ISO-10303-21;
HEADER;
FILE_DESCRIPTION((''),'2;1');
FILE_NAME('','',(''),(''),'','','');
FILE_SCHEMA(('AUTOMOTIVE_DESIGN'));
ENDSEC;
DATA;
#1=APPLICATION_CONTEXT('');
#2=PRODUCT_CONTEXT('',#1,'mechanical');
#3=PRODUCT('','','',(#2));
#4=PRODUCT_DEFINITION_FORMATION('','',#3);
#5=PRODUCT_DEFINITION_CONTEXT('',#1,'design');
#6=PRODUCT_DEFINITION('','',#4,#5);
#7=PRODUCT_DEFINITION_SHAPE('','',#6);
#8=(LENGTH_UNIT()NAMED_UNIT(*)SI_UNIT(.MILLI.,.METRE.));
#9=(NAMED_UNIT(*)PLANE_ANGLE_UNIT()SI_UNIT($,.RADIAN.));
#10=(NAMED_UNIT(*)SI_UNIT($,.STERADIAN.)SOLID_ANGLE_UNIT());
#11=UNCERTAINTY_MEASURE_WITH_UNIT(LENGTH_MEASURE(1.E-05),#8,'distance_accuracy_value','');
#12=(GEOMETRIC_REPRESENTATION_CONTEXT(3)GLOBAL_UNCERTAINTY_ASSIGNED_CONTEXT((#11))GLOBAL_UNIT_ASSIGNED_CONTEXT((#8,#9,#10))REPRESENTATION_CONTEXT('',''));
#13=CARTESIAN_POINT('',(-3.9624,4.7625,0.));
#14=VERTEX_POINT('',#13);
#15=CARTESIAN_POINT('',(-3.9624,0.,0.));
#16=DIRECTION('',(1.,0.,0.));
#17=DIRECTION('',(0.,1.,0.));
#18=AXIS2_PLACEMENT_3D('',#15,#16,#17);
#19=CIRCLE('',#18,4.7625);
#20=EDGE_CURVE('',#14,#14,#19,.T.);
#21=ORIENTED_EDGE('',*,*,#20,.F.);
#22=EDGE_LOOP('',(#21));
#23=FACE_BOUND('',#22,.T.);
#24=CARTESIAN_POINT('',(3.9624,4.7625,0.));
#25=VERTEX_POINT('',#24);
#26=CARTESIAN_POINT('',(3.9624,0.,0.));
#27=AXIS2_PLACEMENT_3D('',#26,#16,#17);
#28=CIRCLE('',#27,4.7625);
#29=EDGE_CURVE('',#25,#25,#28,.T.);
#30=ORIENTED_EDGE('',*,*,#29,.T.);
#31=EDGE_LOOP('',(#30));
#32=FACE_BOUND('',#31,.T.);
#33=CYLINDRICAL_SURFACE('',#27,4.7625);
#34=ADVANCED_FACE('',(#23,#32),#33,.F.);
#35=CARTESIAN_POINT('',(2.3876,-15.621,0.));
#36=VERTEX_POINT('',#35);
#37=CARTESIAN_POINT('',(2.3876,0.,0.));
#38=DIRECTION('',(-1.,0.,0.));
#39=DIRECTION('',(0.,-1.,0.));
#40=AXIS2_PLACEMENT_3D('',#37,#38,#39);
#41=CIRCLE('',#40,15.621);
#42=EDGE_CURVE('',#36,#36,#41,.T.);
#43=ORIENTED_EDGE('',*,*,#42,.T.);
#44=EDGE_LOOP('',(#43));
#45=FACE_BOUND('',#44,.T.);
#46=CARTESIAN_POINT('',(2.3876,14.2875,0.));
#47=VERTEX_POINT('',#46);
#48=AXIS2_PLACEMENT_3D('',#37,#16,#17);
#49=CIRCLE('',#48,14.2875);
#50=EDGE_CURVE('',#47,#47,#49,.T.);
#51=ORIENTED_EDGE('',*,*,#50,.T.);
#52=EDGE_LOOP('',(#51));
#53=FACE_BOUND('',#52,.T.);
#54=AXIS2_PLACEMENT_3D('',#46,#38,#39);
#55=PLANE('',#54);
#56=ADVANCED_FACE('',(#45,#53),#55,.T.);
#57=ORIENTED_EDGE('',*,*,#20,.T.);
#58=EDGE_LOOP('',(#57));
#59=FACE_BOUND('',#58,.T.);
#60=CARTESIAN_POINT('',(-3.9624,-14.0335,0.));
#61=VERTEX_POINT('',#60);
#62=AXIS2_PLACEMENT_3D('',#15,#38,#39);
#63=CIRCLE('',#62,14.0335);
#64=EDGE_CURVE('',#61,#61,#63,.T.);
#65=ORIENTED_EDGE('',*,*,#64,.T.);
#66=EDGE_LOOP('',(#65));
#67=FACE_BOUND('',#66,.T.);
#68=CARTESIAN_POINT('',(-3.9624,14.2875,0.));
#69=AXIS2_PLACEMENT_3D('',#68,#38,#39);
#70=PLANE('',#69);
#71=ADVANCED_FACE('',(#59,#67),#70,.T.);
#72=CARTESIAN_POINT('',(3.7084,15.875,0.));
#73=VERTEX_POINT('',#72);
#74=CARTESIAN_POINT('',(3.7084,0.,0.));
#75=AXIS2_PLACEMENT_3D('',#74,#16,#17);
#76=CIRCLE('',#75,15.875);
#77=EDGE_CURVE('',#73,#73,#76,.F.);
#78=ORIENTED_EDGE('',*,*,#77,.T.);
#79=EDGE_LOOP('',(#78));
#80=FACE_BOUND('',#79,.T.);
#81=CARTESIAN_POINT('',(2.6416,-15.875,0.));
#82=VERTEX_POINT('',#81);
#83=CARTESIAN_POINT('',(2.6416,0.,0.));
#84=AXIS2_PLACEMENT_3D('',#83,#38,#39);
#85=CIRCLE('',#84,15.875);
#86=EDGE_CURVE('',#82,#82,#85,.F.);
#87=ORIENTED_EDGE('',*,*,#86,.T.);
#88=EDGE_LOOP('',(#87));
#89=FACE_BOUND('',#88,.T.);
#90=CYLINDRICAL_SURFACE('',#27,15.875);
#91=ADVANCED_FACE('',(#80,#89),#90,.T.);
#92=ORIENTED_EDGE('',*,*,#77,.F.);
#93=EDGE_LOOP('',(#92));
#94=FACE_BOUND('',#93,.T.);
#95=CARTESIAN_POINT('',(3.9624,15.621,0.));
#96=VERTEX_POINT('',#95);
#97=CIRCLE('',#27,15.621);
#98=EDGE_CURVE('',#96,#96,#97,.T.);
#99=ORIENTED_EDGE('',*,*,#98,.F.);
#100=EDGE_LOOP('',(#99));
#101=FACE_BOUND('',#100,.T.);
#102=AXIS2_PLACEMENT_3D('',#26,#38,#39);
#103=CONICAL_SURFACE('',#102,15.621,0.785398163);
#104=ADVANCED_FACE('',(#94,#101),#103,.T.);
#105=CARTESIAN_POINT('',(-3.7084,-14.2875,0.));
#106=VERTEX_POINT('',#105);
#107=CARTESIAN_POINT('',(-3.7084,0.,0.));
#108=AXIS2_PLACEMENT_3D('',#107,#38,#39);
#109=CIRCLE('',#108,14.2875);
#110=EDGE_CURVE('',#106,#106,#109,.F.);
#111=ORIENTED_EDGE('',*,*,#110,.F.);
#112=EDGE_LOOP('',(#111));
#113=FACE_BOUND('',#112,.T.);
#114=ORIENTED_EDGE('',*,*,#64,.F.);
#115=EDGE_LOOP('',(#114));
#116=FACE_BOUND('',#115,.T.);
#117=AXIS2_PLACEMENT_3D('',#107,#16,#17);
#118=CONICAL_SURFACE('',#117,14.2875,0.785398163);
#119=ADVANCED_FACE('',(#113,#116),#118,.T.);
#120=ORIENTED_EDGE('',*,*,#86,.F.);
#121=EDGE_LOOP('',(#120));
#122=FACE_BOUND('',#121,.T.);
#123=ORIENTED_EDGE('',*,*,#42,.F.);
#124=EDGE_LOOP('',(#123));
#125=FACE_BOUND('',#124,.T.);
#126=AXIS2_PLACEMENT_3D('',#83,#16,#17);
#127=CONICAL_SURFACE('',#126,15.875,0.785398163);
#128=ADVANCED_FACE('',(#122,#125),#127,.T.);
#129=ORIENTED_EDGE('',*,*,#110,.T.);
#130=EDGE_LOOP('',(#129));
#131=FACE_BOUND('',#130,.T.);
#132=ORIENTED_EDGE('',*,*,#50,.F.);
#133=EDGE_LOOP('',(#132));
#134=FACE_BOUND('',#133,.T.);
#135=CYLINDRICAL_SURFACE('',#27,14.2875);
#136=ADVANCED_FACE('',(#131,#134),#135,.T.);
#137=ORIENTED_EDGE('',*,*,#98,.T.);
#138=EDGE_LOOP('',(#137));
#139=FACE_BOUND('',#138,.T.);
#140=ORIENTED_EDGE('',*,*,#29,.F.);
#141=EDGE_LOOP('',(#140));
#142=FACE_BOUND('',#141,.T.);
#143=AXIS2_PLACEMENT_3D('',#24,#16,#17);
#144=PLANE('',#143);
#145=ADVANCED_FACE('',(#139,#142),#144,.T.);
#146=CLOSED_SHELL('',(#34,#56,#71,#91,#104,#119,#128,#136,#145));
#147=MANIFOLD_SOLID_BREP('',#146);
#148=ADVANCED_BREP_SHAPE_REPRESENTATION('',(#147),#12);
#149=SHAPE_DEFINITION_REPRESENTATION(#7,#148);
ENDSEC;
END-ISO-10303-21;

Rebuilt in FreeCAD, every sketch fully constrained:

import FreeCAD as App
import Part
import Sketcher

V = App.Vector
Q = App.Units.Quantity


def edges_at(feature, points):
    """Names of the edges that pass closest to the given points."""
    edges = feature.Shape.Edges
    near = lambda p: min(range(len(edges)), key=lambda i: edges[i].distToShape(Part.Vertex(*p))[0])
    return sorted({f"Edge{near(p) + 1}" for p in points})

doc = App.newDocument("Part")
params = doc.addObject("Spreadsheet::Sheet", "Params")
for row, (alias, value) in enumerate([
    ("sketch1_width", "0.25 in"),
    ("sketch1_width2", "0.312 in"),
    ("sketch1_height", "0.375 in"),
    ("sketch1_height2", "0.4375 in"),
    ("revolution_angle", "360 deg"),
    ("chamfer_size", "0.01 in"),
], start=1):
    params.set(f"A{row}", alias)
    params.set(f"B{row}", "=" + value)
    params.setAlias(f"B{row}", alias)

body = doc.addObject("PartDesign::Body", "Body")

sketch1 = body.newObject("Sketcher::SketchObject", "Sketch")
sketch1.AttachmentSupport = (doc.getObject("XY_Plane"), [""])
sketch1.MapMode = "FlatFace"
sketch1.addGeometry([
    Part.LineSegment(V(2.4, 14.3, 0), V(-4, 14.3, 0)),
    Part.LineSegment(V(-4, 14.3, 0), V(-4, 4.8, 0)),
    Part.LineSegment(V(-4, 4.8, 0), V(4, 4.8, 0)),
    Part.LineSegment(V(4, 4.8, 0), V(4, 15.9, 0)),
    Part.LineSegment(V(4, 15.9, 0), V(2.4, 15.9, 0)),
    Part.LineSegment(V(2.4, 15.9, 0), V(2.4, 14.3, 0)),
], False)
sketch1.addConstraint([
    Sketcher.Constraint("Coincident", 0, 2, 1, 1),
    Sketcher.Constraint("Coincident", 1, 2, 2, 1),
    Sketcher.Constraint("Coincident", 2, 2, 3, 1),
    Sketcher.Constraint("Coincident", 3, 2, 4, 1),
    Sketcher.Constraint("Coincident", 4, 2, 5, 1),
    Sketcher.Constraint("Coincident", 5, 2, 0, 1),
    Sketcher.Constraint("Horizontal", 0),
    Sketcher.Constraint("Vertical", 1),
    Sketcher.Constraint("Horizontal", 2),
    Sketcher.Constraint("Vertical", 3),
    Sketcher.Constraint("Horizontal", 4),
    Sketcher.Constraint("Vertical", 5),
    Sketcher.Constraint("DistanceX", 0, 2, 0, 1, Q("0.25 in")),
    Sketcher.Constraint("DistanceX", 2, 1, 2, 2, Q("0.312 in")),
    Sketcher.Constraint("DistanceY", 1, 2, 1, 1, Q("0.375 in")),
    Sketcher.Constraint("DistanceY", 3, 1, 3, 2, Q("0.4375 in")),
    Sketcher.Constraint("DistanceX", 0, 2, -1, 1, Q("0.156 in")),
    Sketcher.Constraint("DistanceY", -1, 1, 0, 2, Q("0.5625 in")),
])
sketch1.setExpression("Constraints[12]", "Params.sketch1_width")
sketch1.setExpression("Constraints[13]", "Params.sketch1_width2")
sketch1.setExpression("Constraints[14]", "Params.sketch1_height")
sketch1.setExpression("Constraints[15]", "Params.sketch1_height2")
revolution = body.newObject("PartDesign::Revolution", "Revolution")
revolution.Profile = sketch1
revolution.ReferenceAxis = (sketch1, ["H_Axis"])
revolution.setExpression("Angle", "Params.revolution_angle")
doc.recompute()

chamfer = body.newObject("PartDesign::Chamfer", "Chamfer")
chamfer.Base = (revolution, edges_at(revolution, [(3.962, -15.875, 0), (2.388, -15.875, 0), (-3.962, -14.287, 0)]))
chamfer.setExpression("Size", "Params.chamfer_size")

doc.recompute()
